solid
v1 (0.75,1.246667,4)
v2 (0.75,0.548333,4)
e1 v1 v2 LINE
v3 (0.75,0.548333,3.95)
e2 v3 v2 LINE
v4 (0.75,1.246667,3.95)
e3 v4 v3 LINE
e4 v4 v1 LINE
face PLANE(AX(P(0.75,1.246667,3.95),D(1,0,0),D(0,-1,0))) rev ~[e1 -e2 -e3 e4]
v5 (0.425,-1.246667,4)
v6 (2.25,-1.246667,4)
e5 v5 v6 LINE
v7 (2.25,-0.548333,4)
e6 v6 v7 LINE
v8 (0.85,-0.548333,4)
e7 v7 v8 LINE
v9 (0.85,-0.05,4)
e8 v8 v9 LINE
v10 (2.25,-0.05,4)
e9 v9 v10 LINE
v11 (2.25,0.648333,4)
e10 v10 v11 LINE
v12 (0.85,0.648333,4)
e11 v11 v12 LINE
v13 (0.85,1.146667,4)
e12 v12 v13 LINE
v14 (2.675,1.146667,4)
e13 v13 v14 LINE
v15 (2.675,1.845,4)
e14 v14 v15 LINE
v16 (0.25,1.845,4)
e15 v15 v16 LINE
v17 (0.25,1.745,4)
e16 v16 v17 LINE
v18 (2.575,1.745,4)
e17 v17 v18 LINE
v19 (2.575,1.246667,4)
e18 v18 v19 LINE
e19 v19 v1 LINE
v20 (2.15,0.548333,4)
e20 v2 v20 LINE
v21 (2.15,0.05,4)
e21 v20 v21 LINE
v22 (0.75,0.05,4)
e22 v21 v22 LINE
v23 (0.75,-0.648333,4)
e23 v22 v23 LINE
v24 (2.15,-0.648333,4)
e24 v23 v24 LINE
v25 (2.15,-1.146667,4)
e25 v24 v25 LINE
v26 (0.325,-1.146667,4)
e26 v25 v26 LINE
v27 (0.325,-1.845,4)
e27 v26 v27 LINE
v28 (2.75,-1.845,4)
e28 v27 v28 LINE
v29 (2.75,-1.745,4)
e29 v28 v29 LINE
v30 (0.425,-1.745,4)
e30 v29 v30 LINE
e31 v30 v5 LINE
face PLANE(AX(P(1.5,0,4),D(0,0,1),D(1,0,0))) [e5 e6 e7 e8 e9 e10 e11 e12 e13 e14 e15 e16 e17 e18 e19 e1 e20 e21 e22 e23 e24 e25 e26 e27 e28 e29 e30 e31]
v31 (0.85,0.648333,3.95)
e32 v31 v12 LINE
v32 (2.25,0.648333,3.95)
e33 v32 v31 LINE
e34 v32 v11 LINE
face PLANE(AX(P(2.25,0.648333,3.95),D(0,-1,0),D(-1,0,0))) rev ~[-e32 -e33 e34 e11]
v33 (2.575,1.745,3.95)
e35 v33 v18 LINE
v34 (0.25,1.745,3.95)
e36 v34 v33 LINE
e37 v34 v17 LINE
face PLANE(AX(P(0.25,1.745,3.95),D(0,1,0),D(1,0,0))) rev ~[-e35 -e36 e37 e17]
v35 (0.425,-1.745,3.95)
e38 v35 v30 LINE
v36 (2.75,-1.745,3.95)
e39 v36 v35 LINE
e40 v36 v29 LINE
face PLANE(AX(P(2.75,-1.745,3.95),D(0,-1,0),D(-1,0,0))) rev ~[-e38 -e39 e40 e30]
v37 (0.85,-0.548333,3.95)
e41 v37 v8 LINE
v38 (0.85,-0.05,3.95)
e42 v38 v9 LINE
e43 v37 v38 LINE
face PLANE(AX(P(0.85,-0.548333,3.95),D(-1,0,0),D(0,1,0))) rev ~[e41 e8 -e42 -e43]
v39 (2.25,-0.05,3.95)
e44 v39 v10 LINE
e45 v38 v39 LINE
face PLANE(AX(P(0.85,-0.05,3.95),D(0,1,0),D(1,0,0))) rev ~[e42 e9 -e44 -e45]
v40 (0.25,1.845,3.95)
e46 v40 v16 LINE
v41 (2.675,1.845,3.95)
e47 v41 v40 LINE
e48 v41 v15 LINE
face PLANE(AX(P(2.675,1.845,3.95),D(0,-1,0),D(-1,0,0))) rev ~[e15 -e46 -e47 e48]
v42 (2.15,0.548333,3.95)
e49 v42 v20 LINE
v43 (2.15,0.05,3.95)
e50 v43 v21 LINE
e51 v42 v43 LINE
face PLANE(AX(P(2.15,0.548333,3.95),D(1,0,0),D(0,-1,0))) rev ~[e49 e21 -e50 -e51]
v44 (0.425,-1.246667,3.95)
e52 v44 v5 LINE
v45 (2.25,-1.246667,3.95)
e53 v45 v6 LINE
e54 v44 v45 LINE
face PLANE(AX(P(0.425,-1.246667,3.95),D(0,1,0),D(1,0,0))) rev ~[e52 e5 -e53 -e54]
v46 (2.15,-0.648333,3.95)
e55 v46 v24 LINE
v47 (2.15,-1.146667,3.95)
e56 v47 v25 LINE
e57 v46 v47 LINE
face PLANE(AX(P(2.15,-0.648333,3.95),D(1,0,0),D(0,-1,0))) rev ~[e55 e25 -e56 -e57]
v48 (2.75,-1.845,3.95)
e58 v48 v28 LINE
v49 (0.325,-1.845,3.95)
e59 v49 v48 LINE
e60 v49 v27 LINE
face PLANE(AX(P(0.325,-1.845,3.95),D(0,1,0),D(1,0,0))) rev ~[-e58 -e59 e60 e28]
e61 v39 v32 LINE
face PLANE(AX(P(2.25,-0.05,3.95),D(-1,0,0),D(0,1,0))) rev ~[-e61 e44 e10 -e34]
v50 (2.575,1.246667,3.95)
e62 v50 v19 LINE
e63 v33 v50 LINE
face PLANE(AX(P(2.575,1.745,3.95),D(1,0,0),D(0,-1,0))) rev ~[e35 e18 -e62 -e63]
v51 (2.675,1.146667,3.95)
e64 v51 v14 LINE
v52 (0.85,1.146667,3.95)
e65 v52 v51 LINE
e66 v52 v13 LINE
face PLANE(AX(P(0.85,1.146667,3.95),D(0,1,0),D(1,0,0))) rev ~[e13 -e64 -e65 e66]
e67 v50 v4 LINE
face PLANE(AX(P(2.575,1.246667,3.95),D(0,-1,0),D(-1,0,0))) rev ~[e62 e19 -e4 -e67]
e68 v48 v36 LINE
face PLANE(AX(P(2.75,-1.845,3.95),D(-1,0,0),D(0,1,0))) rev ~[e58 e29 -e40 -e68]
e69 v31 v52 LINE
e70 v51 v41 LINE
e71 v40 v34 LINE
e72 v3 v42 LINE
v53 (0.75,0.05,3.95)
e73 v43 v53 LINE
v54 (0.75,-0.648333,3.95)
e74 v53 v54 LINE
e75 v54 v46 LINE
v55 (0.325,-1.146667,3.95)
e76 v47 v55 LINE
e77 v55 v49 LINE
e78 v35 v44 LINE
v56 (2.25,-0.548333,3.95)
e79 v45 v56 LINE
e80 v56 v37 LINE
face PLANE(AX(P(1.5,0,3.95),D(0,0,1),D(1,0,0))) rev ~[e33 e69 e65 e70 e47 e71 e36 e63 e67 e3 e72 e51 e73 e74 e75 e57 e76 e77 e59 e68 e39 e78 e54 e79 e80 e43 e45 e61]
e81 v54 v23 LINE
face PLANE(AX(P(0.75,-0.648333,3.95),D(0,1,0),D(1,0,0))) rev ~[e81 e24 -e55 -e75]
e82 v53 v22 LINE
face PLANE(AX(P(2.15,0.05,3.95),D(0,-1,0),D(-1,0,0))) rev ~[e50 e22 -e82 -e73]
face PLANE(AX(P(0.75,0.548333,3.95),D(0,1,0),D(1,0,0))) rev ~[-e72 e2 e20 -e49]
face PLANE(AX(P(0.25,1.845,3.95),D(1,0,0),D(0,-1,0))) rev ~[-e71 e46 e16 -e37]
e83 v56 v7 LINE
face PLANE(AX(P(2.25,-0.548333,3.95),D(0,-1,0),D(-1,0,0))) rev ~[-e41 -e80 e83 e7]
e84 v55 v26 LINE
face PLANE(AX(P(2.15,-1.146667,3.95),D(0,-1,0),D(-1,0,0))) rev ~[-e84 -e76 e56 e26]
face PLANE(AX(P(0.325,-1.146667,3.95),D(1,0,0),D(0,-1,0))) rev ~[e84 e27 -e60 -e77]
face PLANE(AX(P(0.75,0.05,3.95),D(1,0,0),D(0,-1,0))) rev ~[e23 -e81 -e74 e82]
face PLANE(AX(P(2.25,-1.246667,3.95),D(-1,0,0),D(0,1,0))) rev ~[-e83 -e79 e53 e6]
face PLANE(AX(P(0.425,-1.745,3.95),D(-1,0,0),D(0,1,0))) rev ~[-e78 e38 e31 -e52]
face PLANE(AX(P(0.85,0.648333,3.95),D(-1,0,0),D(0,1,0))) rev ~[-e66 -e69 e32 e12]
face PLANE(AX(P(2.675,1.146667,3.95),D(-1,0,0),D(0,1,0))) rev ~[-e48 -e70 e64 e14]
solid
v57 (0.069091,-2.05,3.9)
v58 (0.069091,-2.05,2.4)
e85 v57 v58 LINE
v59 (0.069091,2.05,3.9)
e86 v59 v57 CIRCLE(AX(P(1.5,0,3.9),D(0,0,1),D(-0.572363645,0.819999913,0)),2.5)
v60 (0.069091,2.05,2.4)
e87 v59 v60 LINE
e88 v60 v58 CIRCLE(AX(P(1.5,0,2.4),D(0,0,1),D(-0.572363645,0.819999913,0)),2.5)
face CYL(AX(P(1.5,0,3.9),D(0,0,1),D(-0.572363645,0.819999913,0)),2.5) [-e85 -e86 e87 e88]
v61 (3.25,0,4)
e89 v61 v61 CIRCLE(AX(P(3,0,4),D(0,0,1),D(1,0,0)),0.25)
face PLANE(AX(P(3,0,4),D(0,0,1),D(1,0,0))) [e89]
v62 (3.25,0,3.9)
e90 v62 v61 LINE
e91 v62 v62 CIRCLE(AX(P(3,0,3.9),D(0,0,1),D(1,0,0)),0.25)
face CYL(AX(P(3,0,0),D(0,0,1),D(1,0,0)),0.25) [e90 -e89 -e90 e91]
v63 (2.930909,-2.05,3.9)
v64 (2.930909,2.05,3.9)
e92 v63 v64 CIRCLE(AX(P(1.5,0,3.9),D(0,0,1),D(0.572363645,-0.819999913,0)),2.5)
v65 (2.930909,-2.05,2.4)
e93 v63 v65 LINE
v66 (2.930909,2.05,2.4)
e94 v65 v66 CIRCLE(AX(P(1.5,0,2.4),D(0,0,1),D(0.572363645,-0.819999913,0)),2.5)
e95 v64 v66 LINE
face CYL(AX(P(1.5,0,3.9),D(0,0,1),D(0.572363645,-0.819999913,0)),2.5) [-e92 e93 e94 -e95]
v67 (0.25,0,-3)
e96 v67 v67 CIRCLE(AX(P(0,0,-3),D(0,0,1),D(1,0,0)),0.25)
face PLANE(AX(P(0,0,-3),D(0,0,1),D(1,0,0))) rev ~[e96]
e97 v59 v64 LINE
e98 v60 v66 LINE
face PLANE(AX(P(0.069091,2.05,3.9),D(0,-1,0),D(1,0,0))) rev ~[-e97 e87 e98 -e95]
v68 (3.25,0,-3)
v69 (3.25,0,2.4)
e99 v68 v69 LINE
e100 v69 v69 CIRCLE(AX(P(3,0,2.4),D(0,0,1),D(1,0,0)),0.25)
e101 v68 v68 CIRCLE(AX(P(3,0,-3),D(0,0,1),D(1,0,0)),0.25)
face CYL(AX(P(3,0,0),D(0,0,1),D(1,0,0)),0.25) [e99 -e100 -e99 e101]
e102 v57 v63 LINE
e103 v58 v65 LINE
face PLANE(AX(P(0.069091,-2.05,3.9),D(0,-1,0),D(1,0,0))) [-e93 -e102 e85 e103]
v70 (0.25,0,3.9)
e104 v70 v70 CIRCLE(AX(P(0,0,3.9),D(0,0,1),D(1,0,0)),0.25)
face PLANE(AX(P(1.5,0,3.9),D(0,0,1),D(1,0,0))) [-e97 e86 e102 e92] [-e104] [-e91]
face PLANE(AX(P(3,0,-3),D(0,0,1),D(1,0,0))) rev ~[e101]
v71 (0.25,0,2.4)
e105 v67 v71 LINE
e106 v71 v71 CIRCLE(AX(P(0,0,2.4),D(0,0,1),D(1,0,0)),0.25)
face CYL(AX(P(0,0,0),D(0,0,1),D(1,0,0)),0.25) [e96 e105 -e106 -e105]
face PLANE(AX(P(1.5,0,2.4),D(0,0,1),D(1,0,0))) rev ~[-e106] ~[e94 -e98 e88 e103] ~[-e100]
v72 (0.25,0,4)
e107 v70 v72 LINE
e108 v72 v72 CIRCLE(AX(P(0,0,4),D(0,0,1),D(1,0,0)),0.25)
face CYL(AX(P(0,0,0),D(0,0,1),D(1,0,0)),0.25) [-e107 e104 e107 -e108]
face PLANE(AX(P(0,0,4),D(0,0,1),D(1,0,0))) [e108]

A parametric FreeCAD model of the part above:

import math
import FreeCAD as App
import Part
import Sketcher

V = App.Vector

doc = App.newDocument("Part")
body = doc.addObject("PartDesign::Body", "Body")

# Sketch on XY plane
sketch1 = body.newObject("Sketcher::SketchObject", "Sketch")
sketch1.AttachmentSupport = (doc.getObject("XY_Plane"), [""])
sketch1.MapMode = "FlatFace"
sketch1.AttachmentOffset = App.Placement(V(0, 0, 3.9), App.Rotation())
sketch1.addGeometry([
    Part.ArcOfCircle(Part.Circle(V(1.5, 0, 0), V(0, 0, 1), 2.5), math.radians(124.915215), math.radians(235.084785)),
    Part.LineSegment(V(0.069091, -2.05, 0), V(2.930909, -2.05, 0)),
    Part.ArcOfCircle(Part.Circle(V(1.5, 0, 0), V(0, 0, 1), 2.5), math.radians(-55.084785), math.radians(55.084785)),
    Part.LineSegment(V(2.930909, 2.05, 0), V(0.069091, 2.05, 0)),
], False)
sketch1.addConstraint([
    Sketcher.Constraint("Coincident", 0, 2, 1, 1),
    Sketcher.Constraint("Coincident", 1, 2, 2, 1),
    Sketcher.Constraint("Coincident", 2, 2, 3, 1),
    Sketcher.Constraint("Coincident", 3, 2, 0, 1),
    Sketcher.Constraint("Horizontal", 1),
    Sketcher.Constraint("Horizontal", 3),
    Sketcher.Constraint("Coincident", 2, 3, 0, 3),
    Sketcher.Constraint("Equal", 0, 2),
    Sketcher.Constraint("Symmetric", 1, 2, 2, 2, -1),
    Sketcher.Constraint("Radius", 0, 2.5),
    Sketcher.Constraint("DistanceX", -1, 1, 0, 3, 1.5),
    Sketcher.Constraint("DistanceY", 1, 2, 2, 2, 4.1),
])
pad1 = body.newObject("PartDesign::Pad", "Pad")
pad1.Profile = sketch1
pad1.Length = 1.5
pad1.Reversed = True
body2 = doc.addObject("PartDesign::Body", "Body001")
body2.AllowCompound = True

# Sketch on XY plane
sketch2 = body2.newObject("Sketcher::SketchObject", "Sketch001")
sketch2.AttachmentSupport = (doc.getObject("XY_Plane001"), [""])
sketch2.MapMode = "FlatFace"
sketch2.addGeometry([
    Part.Circle(V(0, 0, 0), V(0, 0, 1), 0.25),
    Part.Circle(V(3, 0, 0), V(0, 0, 1), 0.25),
], False)
sketch2.addConstraint([
    Sketcher.Constraint("Coincident", 0, 3, -1, 1),
    Sketcher.Constraint("Equal", 0, 1),
    Sketcher.Constraint("PointOnObject", 1, 3, -1),
    Sketcher.Constraint("Diameter", 0, 0.5),
    Sketcher.Constraint("DistanceX", -1, 1, 1, 3, 3.0),
])
pad2 = body2.newObject("PartDesign::Pad", "Pad001")
pad2.Profile = sketch2
pad2.Type = "TwoLengths"
pad2.Length = 4
pad2.Length2 = 3
body3 = doc.addObject("PartDesign::Body", "Body002")
body3.AllowCompound = True

# Sketch on XY plane
sketch3 = body3.newObject("Sketcher::SketchObject", "Sketch002")
sketch3.AttachmentSupport = (doc.getObject("XY_Plane002"), [""])
sketch3.MapMode = "FlatFace"
sketch3.AttachmentOffset = App.Placement(V(0, 0, 3.95), App.Rotation())
sketch3.addGeometry([
    Part.LineSegment(V(0.25, 1.745, 0), V(2.575, 1.745, 0)),  # 0
    Part.LineSegment(V(2.575, 1.745, 0), V(2.575, 1.246667, 0)),  # 1
    Part.LineSegment(V(2.575, 1.246667, 0), V(0.75, 1.246667, 0)),  # 2
    Part.LineSegment(V(0.75, 1.246667, 0), V(0.75, 0.548333, 0)),  # 3
    Part.LineSegment(V(0.75, 0.548333, 0), V(2.15, 0.548333, 0)),  # 4
    Part.LineSegment(V(2.15, 0.548333, 0), V(2.15, 0.05, 0)),  # 5
    Part.LineSegment(V(2.15, 0.05, 0), V(0.75, 0.05, 0)),  # 6
    Part.LineSegment(V(0.75, 0.05, 0), V(0.75, -0.648333, 0)),  # 7
    Part.LineSegment(V(0.75, -0.648333, 0), V(2.15, -0.648333, 0)),  # 8
    Part.LineSegment(V(2.15, -0.648333, 0), V(2.15, -1.146667, 0)),  # 9
    Part.LineSegment(V(2.15, -1.146667, 0), V(0.325, -1.146667, 0)),  # 10
    Part.LineSegment(V(0.325, -1.146667, 0), V(0.325, -1.845, 0)),  # 11
    Part.LineSegment(V(0.325, -1.845, 0), V(2.75, -1.845, 0)),  # 12
    Part.LineSegment(V(2.75, -1.845, 0), V(2.75, -1.745, 0)),  # 13
    Part.LineSegment(V(2.75, -1.745, 0), V(0.425, -1.745, 0)),  # 14
    Part.LineSegment(V(0.425, -1.745, 0), V(0.425, -1.246667, 0)),  # 15
    Part.LineSegment(V(0.425, -1.246667, 0), V(2.25, -1.246667, 0)),  # 16
    Part.LineSegment(V(2.25, -1.246667, 0), V(2.25, -0.548333, 0)),  # 17
    Part.LineSegment(V(2.25, -0.548333, 0), V(0.85, -0.548333, 0)),  # 18
    Part.LineSegment(V(0.85, -0.548333, 0), V(0.85, -0.05, 0)),  # 19
    Part.LineSegment(V(0.85, -0.05, 0), V(2.25, -0.05, 0)),  # 20
    Part.LineSegment(V(2.25, -0.05, 0), V(2.25, 0.648333, 0)),  # 21
    Part.LineSegment(V(2.25, 0.648333, 0), V(0.85, 0.648333, 0)),  # 22
    Part.LineSegment(V(0.85, 0.648333, 0), V(0.85, 1.146667, 0)),  # 23
    Part.LineSegment(V(0.85, 1.146667, 0), V(2.675, 1.146667, 0)),  # 24
    Part.LineSegment(V(2.675, 1.146667, 0), V(2.675, 1.845, 0)),  # 25
    Part.LineSegment(V(2.675, 1.845, 0), V(0.25, 1.845, 0)),  # 26
    Part.LineSegment(V(0.25, 1.845, 0), V(0.25, 1.745, 0)),  # 27
], False)
sketch3.addConstraint([
    Sketcher.Constraint("Coincident", 0, 2, 1, 1),
    Sketcher.Constraint("Coincident", 1, 2, 2, 1),
    Sketcher.Constraint("Coincident", 2, 2, 3, 1),
    Sketcher.Constraint("Coincident", 3, 2, 4, 1),
    Sketcher.Constraint("Coincident", 4, 2, 5, 1),
    Sketcher.Constraint("Coincident", 5, 2, 6, 1),
    Sketcher.Constraint("Coincident", 6, 2, 7, 1),
    Sketcher.Constraint("Coincident", 7, 2, 8, 1),
    Sketcher.Constraint("Coincident", 8, 2, 9, 1),
    Sketcher.Constraint("Coincident", 9, 2, 10, 1),
    Sketcher.Constraint("Coincident", 10, 2, 11, 1),
    Sketcher.Constraint("Coincident", 11, 2, 12, 1),
    Sketcher.Constraint("Coincident", 12, 2, 13, 1),
    Sketcher.Constraint("Coincident", 13, 2, 14, 1),
    Sketcher.Constraint("Coincident", 14, 2, 15, 1),
    Sketcher.Constraint("Coincident", 15, 2, 16, 1),
    Sketcher.Constraint("Coincident", 16, 2, 17, 1),
    Sketcher.Constraint("Coincident", 17, 2, 18, 1),
    Sketcher.Constraint("Coincident", 18, 2, 19, 1),
    Sketcher.Constraint("Coincident", 19, 2, 20, 1),
    Sketcher.Constraint("Coincident", 20, 2, 21, 1),
    Sketcher.Constraint("Coincident", 21, 2, 22, 1),
    Sketcher.Constraint("Coincident", 22, 2, 23, 1),
    Sketcher.Constraint("Coincident", 23, 2, 24, 1),
    Sketcher.Constraint("Coincident", 24, 2, 25, 1),
    Sketcher.Constraint("Coincident", 25, 2, 26, 1),
    Sketcher.Constraint("Coincident", 26, 2, 27, 1),
    Sketcher.Constraint("Coincident", 27, 2, 0, 1),
    Sketcher.Constraint("Horizontal", 0),
    Sketcher.Constraint("Vertical", 1),
    Sketcher.Constraint("Horizontal", 2),
    Sketcher.Constraint("Vertical", 3),
    Sketcher.Constraint("Horizontal", 4),
    Sketcher.Constraint("Vertical", 5),
    Sketcher.Constraint("Horizontal", 6),
    Sketcher.Constraint("Vertical", 7),
    Sketcher.Constraint("Horizontal", 8),
    Sketcher.Constraint("Vertical", 9),
    Sketcher.Constraint("Horizontal", 10),
    Sketcher.Constraint("Vertical", 11),
    Sketcher.Constraint("Horizontal", 12),
    Sketcher.Constraint("Vertical", 13),
    Sketcher.Constraint("Horizontal", 14),
    Sketcher.Constraint("Vertical", 15),
    Sketcher.Constraint("Horizontal", 16),
    Sketcher.Constraint("Vertical", 17),
    Sketcher.Constraint("Horizontal", 18),
    Sketcher.Constraint("Vertical", 19),
    Sketcher.Constraint("Horizontal", 20),
    Sketcher.Constraint("Vertical", 21),
    Sketcher.Constraint("Horizontal", 22),
    Sketcher.Constraint("Vertical", 23),
    Sketcher.Constraint("Horizontal", 24),
    Sketcher.Constraint("Vertical", 25),
    Sketcher.Constraint("Horizontal", 26),
    Sketcher.Constraint("Vertical", 27),
    Sketcher.Constraint("Vertical", 3, 2, 6, 2),
    Sketcher.Constraint("Vertical", 5, 2, 8, 2),
    Sketcher.Constraint("Vertical", 17, 2, 20, 2),
    Sketcher.Constraint("Vertical", 19, 2, 22, 2),
    Sketcher.Constraint("Equal", 2, 10),
    Sketcher.Constraint("Equal", 0, 14),
    Sketcher.Constraint("Equal", 10, 16),
    Sketcher.Constraint("Equal", 8, 18),
    Sketcher.Constraint("Equal", 16, 24),
    Sketcher.Constraint("Equal", 1, 5),
    Sketcher.Constraint("Equal", 3, 7),
    Sketcher.Constraint("Equal", 5, 9),
    Sketcher.Constraint("Equal", 7, 11),
    Sketcher.Constraint("Equal", 9, 15),
    Sketcher.Constraint("Equal", 11, 17),
    Sketcher.Constraint("Equal", 15, 19),
    Sketcher.Constraint("Equal", 17, 21),
    Sketcher.Constraint("Equal", 19, 23),
    Sketcher.Constraint("Equal", 21, 25),
    Sketcher.Constraint("DistanceX", 4, 1, 4, 2, 1.4),
    Sketcher.Constraint("DistanceY", 13, 1, 13, 2, 0.1),
    Sketcher.Constraint("DistanceX", 7, 2, 12, 2, 2.0),
    Sketcher.Constraint("DistanceX", 11, 2, 14, 2, 0.1),
    Sketcher.Constraint("DistanceY", 15, 2, 10, 2, 0.1),
    Sketcher.Constraint("DistanceX", 0, 1, 0, 2, 2.325),
    Sketcher.Constraint("DistanceX", -1, 1, 2, 2, 0.75),
    Sketcher.Constraint("DistanceY", -1, 1, 5, 2, 0.05),
    Sketcher.Constraint("DistanceY", -1, 1, 0, 2, 1.745),
])
pad3 = body3.newObject("PartDesign::Pad", "Pad002")
pad3.Profile = sketch3
pad3.Length = 0.05
doc.recompute()

boolean = body3.newObject("PartDesign::Boolean", "Boolean")
boolean.Type = "Fuse"
boolean.addObjects([body])
doc.recompute()

boolean2 = body3.newObject("PartDesign::Boolean", "Boolean001")
boolean2.Type = "Fuse"
boolean2.addObjects([body2])

doc.recompute()
